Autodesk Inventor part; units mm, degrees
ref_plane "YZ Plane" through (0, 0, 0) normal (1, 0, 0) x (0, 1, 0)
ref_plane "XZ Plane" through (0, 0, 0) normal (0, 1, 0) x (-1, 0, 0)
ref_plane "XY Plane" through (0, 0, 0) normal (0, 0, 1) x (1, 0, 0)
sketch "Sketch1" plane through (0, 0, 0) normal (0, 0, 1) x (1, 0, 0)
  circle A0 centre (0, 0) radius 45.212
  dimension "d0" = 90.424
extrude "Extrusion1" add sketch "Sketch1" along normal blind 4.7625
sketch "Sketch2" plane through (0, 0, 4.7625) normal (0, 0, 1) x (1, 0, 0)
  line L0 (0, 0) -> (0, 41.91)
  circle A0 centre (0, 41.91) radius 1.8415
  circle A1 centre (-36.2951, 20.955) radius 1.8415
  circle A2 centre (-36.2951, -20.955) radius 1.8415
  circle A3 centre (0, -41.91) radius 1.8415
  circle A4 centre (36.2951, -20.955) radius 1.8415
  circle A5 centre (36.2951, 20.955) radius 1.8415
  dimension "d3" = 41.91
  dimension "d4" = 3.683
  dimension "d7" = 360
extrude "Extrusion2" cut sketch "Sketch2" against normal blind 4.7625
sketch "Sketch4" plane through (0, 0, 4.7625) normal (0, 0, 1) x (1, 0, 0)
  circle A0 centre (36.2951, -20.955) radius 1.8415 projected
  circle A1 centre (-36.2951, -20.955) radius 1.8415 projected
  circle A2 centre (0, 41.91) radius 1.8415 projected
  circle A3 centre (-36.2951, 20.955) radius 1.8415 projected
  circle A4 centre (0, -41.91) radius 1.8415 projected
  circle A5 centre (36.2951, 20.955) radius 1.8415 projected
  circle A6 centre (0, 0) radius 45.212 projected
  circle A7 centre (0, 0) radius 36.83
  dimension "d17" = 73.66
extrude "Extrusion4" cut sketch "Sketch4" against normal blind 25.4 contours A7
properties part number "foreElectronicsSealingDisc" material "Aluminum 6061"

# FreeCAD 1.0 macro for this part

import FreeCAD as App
import Part
import Sketcher
from FreeCAD import Vector
Q = App.Units.Quantity

doc = App.newDocument("Part")
body = doc.addObject("PartDesign::Body", "Body")

# Sketch on XY plane
sketch1 = body.newObject("Sketcher::SketchObject", "Sketch")
sketch1.AttachmentSupport = (doc.getObject("XY_Plane"), [""])
sketch1.MapMode = "FlatFace"
sketch1.addGeometry(Part.Circle(Vector(0, 0, 0), Vector(0, 0, 1), 45), False)
sketch1.addConstraint(Sketcher.Constraint("Coincident", 0, 3, -1, 1))
sketch1.addConstraint(Sketcher.Constraint("Diameter", 0, Q("3.56 in")))
pad1 = body.newObject("PartDesign::Pad", "Pad")
pad1.Profile = sketch1
pad1.Length = Q("0.1875 in")

# Sketch on XY plane
sketch2 = body.newObject("Sketcher::SketchObject", "Sketch001")
sketch2.AttachmentSupport = (doc.getObject("XY_Plane"), [""])
sketch2.MapMode = "FlatFace"
sketch2.AttachmentOffset = App.Placement(Vector(0, 0, 0.1875 * 25.4), App.Rotation())
sketch2.addGeometry(Part.Circle(Vector(0, 41.9, 0), Vector(0, 0, 1), 1.8), False)
sketch2.addGeometry(Part.Circle(Vector(-36.3, 21, 0), Vector(0, 0, 1), 1.8), False)
sketch2.addGeometry(Part.Circle(Vector(-36.3, -21, 0), Vector(0, 0, 1), 1.8), False)
sketch2.addGeometry(Part.Circle(Vector(0, -41.9, 0), Vector(0, 0, 1), 1.8), False)
sketch2.addGeometry(Part.Circle(Vector(36.3, -21, 0), Vector(0, 0, 1), 1.8), False)
sketch2.addGeometry(Part.Circle(Vector(36.3, 21, 0), Vector(0, 0, 1), 1.8), False)
sketch2.addConstraint(Sketcher.Constraint("Equal", 0, 1))
sketch2.addConstraint(Sketcher.Constraint("Equal", 1, 2))
sketch2.addConstraint(Sketcher.Constraint("Equal", 2, 3))
sketch2.addConstraint(Sketcher.Constraint("Equal", 3, 4))
sketch2.addConstraint(Sketcher.Constraint("Equal", 4, 5))
sketch2.addConstraint(Sketcher.Constraint("Symmetric", 0, 3, 3, 3, -1, 1))
sketch2.addConstraint(Sketcher.Constraint("Symmetric", 1, 3, 4, 3, -1, 1))
sketch2.addConstraint(Sketcher.Constraint("Symmetric", 2, 3, 5, 3, -1, 1))
sketch2.addConstraint(Sketcher.Constraint("Symmetric", 2, 3, 4, 3, -2))
sketch2.addConstraint(Sketcher.Constraint("PointOnObject", 0, 3, -2))
sketch2.addConstraint(Sketcher.Constraint("Diameter", 0, Q("0.145 in")))
sketch2.addConstraint(Sketcher.Constraint("DistanceY", -1, 1, 0, 3, Q("1.65 in")))
sketch2.addConstraint(Sketcher.Constraint("DistanceY", 2, 3, 1, 3, Q("1.65 in")))
sketch2.addConstraint(Sketcher.Constraint("DistanceX", 1, 3, -1, 1, 36.295))
pocket1 = body.newObject("PartDesign::Pocket", "Pocket")
pocket1.Profile = sketch2
pocket1.Length = Q("0.1875 in")

# Sketch on XY plane
sketch3 = body.newObject("Sketcher::SketchObject", "Sketch002")
sketch3.AttachmentSupport = (doc.getObject("XY_Plane"), [""])
sketch3.MapMode = "FlatFace"
sketch3.AttachmentOffset = App.Placement(Vector(0, 0, 0.1875 * 25.4), App.Rotation())
sketch3.addGeometry(Part.Circle(Vector(0, 0, 0), Vector(0, 0, 1), 37), False)
sketch3.addConstraint(Sketcher.Constraint("Coincident", 0, 3, -1, 1))
sketch3.addConstraint(Sketcher.Constraint("Diameter", 0, Q("2.9 in")))
pocket2 = body.newObject("PartDesign::Pocket", "Pocket001")
pocket2.Profile = sketch3
pocket2.Length = Q("1 in")

doc.recompute()
